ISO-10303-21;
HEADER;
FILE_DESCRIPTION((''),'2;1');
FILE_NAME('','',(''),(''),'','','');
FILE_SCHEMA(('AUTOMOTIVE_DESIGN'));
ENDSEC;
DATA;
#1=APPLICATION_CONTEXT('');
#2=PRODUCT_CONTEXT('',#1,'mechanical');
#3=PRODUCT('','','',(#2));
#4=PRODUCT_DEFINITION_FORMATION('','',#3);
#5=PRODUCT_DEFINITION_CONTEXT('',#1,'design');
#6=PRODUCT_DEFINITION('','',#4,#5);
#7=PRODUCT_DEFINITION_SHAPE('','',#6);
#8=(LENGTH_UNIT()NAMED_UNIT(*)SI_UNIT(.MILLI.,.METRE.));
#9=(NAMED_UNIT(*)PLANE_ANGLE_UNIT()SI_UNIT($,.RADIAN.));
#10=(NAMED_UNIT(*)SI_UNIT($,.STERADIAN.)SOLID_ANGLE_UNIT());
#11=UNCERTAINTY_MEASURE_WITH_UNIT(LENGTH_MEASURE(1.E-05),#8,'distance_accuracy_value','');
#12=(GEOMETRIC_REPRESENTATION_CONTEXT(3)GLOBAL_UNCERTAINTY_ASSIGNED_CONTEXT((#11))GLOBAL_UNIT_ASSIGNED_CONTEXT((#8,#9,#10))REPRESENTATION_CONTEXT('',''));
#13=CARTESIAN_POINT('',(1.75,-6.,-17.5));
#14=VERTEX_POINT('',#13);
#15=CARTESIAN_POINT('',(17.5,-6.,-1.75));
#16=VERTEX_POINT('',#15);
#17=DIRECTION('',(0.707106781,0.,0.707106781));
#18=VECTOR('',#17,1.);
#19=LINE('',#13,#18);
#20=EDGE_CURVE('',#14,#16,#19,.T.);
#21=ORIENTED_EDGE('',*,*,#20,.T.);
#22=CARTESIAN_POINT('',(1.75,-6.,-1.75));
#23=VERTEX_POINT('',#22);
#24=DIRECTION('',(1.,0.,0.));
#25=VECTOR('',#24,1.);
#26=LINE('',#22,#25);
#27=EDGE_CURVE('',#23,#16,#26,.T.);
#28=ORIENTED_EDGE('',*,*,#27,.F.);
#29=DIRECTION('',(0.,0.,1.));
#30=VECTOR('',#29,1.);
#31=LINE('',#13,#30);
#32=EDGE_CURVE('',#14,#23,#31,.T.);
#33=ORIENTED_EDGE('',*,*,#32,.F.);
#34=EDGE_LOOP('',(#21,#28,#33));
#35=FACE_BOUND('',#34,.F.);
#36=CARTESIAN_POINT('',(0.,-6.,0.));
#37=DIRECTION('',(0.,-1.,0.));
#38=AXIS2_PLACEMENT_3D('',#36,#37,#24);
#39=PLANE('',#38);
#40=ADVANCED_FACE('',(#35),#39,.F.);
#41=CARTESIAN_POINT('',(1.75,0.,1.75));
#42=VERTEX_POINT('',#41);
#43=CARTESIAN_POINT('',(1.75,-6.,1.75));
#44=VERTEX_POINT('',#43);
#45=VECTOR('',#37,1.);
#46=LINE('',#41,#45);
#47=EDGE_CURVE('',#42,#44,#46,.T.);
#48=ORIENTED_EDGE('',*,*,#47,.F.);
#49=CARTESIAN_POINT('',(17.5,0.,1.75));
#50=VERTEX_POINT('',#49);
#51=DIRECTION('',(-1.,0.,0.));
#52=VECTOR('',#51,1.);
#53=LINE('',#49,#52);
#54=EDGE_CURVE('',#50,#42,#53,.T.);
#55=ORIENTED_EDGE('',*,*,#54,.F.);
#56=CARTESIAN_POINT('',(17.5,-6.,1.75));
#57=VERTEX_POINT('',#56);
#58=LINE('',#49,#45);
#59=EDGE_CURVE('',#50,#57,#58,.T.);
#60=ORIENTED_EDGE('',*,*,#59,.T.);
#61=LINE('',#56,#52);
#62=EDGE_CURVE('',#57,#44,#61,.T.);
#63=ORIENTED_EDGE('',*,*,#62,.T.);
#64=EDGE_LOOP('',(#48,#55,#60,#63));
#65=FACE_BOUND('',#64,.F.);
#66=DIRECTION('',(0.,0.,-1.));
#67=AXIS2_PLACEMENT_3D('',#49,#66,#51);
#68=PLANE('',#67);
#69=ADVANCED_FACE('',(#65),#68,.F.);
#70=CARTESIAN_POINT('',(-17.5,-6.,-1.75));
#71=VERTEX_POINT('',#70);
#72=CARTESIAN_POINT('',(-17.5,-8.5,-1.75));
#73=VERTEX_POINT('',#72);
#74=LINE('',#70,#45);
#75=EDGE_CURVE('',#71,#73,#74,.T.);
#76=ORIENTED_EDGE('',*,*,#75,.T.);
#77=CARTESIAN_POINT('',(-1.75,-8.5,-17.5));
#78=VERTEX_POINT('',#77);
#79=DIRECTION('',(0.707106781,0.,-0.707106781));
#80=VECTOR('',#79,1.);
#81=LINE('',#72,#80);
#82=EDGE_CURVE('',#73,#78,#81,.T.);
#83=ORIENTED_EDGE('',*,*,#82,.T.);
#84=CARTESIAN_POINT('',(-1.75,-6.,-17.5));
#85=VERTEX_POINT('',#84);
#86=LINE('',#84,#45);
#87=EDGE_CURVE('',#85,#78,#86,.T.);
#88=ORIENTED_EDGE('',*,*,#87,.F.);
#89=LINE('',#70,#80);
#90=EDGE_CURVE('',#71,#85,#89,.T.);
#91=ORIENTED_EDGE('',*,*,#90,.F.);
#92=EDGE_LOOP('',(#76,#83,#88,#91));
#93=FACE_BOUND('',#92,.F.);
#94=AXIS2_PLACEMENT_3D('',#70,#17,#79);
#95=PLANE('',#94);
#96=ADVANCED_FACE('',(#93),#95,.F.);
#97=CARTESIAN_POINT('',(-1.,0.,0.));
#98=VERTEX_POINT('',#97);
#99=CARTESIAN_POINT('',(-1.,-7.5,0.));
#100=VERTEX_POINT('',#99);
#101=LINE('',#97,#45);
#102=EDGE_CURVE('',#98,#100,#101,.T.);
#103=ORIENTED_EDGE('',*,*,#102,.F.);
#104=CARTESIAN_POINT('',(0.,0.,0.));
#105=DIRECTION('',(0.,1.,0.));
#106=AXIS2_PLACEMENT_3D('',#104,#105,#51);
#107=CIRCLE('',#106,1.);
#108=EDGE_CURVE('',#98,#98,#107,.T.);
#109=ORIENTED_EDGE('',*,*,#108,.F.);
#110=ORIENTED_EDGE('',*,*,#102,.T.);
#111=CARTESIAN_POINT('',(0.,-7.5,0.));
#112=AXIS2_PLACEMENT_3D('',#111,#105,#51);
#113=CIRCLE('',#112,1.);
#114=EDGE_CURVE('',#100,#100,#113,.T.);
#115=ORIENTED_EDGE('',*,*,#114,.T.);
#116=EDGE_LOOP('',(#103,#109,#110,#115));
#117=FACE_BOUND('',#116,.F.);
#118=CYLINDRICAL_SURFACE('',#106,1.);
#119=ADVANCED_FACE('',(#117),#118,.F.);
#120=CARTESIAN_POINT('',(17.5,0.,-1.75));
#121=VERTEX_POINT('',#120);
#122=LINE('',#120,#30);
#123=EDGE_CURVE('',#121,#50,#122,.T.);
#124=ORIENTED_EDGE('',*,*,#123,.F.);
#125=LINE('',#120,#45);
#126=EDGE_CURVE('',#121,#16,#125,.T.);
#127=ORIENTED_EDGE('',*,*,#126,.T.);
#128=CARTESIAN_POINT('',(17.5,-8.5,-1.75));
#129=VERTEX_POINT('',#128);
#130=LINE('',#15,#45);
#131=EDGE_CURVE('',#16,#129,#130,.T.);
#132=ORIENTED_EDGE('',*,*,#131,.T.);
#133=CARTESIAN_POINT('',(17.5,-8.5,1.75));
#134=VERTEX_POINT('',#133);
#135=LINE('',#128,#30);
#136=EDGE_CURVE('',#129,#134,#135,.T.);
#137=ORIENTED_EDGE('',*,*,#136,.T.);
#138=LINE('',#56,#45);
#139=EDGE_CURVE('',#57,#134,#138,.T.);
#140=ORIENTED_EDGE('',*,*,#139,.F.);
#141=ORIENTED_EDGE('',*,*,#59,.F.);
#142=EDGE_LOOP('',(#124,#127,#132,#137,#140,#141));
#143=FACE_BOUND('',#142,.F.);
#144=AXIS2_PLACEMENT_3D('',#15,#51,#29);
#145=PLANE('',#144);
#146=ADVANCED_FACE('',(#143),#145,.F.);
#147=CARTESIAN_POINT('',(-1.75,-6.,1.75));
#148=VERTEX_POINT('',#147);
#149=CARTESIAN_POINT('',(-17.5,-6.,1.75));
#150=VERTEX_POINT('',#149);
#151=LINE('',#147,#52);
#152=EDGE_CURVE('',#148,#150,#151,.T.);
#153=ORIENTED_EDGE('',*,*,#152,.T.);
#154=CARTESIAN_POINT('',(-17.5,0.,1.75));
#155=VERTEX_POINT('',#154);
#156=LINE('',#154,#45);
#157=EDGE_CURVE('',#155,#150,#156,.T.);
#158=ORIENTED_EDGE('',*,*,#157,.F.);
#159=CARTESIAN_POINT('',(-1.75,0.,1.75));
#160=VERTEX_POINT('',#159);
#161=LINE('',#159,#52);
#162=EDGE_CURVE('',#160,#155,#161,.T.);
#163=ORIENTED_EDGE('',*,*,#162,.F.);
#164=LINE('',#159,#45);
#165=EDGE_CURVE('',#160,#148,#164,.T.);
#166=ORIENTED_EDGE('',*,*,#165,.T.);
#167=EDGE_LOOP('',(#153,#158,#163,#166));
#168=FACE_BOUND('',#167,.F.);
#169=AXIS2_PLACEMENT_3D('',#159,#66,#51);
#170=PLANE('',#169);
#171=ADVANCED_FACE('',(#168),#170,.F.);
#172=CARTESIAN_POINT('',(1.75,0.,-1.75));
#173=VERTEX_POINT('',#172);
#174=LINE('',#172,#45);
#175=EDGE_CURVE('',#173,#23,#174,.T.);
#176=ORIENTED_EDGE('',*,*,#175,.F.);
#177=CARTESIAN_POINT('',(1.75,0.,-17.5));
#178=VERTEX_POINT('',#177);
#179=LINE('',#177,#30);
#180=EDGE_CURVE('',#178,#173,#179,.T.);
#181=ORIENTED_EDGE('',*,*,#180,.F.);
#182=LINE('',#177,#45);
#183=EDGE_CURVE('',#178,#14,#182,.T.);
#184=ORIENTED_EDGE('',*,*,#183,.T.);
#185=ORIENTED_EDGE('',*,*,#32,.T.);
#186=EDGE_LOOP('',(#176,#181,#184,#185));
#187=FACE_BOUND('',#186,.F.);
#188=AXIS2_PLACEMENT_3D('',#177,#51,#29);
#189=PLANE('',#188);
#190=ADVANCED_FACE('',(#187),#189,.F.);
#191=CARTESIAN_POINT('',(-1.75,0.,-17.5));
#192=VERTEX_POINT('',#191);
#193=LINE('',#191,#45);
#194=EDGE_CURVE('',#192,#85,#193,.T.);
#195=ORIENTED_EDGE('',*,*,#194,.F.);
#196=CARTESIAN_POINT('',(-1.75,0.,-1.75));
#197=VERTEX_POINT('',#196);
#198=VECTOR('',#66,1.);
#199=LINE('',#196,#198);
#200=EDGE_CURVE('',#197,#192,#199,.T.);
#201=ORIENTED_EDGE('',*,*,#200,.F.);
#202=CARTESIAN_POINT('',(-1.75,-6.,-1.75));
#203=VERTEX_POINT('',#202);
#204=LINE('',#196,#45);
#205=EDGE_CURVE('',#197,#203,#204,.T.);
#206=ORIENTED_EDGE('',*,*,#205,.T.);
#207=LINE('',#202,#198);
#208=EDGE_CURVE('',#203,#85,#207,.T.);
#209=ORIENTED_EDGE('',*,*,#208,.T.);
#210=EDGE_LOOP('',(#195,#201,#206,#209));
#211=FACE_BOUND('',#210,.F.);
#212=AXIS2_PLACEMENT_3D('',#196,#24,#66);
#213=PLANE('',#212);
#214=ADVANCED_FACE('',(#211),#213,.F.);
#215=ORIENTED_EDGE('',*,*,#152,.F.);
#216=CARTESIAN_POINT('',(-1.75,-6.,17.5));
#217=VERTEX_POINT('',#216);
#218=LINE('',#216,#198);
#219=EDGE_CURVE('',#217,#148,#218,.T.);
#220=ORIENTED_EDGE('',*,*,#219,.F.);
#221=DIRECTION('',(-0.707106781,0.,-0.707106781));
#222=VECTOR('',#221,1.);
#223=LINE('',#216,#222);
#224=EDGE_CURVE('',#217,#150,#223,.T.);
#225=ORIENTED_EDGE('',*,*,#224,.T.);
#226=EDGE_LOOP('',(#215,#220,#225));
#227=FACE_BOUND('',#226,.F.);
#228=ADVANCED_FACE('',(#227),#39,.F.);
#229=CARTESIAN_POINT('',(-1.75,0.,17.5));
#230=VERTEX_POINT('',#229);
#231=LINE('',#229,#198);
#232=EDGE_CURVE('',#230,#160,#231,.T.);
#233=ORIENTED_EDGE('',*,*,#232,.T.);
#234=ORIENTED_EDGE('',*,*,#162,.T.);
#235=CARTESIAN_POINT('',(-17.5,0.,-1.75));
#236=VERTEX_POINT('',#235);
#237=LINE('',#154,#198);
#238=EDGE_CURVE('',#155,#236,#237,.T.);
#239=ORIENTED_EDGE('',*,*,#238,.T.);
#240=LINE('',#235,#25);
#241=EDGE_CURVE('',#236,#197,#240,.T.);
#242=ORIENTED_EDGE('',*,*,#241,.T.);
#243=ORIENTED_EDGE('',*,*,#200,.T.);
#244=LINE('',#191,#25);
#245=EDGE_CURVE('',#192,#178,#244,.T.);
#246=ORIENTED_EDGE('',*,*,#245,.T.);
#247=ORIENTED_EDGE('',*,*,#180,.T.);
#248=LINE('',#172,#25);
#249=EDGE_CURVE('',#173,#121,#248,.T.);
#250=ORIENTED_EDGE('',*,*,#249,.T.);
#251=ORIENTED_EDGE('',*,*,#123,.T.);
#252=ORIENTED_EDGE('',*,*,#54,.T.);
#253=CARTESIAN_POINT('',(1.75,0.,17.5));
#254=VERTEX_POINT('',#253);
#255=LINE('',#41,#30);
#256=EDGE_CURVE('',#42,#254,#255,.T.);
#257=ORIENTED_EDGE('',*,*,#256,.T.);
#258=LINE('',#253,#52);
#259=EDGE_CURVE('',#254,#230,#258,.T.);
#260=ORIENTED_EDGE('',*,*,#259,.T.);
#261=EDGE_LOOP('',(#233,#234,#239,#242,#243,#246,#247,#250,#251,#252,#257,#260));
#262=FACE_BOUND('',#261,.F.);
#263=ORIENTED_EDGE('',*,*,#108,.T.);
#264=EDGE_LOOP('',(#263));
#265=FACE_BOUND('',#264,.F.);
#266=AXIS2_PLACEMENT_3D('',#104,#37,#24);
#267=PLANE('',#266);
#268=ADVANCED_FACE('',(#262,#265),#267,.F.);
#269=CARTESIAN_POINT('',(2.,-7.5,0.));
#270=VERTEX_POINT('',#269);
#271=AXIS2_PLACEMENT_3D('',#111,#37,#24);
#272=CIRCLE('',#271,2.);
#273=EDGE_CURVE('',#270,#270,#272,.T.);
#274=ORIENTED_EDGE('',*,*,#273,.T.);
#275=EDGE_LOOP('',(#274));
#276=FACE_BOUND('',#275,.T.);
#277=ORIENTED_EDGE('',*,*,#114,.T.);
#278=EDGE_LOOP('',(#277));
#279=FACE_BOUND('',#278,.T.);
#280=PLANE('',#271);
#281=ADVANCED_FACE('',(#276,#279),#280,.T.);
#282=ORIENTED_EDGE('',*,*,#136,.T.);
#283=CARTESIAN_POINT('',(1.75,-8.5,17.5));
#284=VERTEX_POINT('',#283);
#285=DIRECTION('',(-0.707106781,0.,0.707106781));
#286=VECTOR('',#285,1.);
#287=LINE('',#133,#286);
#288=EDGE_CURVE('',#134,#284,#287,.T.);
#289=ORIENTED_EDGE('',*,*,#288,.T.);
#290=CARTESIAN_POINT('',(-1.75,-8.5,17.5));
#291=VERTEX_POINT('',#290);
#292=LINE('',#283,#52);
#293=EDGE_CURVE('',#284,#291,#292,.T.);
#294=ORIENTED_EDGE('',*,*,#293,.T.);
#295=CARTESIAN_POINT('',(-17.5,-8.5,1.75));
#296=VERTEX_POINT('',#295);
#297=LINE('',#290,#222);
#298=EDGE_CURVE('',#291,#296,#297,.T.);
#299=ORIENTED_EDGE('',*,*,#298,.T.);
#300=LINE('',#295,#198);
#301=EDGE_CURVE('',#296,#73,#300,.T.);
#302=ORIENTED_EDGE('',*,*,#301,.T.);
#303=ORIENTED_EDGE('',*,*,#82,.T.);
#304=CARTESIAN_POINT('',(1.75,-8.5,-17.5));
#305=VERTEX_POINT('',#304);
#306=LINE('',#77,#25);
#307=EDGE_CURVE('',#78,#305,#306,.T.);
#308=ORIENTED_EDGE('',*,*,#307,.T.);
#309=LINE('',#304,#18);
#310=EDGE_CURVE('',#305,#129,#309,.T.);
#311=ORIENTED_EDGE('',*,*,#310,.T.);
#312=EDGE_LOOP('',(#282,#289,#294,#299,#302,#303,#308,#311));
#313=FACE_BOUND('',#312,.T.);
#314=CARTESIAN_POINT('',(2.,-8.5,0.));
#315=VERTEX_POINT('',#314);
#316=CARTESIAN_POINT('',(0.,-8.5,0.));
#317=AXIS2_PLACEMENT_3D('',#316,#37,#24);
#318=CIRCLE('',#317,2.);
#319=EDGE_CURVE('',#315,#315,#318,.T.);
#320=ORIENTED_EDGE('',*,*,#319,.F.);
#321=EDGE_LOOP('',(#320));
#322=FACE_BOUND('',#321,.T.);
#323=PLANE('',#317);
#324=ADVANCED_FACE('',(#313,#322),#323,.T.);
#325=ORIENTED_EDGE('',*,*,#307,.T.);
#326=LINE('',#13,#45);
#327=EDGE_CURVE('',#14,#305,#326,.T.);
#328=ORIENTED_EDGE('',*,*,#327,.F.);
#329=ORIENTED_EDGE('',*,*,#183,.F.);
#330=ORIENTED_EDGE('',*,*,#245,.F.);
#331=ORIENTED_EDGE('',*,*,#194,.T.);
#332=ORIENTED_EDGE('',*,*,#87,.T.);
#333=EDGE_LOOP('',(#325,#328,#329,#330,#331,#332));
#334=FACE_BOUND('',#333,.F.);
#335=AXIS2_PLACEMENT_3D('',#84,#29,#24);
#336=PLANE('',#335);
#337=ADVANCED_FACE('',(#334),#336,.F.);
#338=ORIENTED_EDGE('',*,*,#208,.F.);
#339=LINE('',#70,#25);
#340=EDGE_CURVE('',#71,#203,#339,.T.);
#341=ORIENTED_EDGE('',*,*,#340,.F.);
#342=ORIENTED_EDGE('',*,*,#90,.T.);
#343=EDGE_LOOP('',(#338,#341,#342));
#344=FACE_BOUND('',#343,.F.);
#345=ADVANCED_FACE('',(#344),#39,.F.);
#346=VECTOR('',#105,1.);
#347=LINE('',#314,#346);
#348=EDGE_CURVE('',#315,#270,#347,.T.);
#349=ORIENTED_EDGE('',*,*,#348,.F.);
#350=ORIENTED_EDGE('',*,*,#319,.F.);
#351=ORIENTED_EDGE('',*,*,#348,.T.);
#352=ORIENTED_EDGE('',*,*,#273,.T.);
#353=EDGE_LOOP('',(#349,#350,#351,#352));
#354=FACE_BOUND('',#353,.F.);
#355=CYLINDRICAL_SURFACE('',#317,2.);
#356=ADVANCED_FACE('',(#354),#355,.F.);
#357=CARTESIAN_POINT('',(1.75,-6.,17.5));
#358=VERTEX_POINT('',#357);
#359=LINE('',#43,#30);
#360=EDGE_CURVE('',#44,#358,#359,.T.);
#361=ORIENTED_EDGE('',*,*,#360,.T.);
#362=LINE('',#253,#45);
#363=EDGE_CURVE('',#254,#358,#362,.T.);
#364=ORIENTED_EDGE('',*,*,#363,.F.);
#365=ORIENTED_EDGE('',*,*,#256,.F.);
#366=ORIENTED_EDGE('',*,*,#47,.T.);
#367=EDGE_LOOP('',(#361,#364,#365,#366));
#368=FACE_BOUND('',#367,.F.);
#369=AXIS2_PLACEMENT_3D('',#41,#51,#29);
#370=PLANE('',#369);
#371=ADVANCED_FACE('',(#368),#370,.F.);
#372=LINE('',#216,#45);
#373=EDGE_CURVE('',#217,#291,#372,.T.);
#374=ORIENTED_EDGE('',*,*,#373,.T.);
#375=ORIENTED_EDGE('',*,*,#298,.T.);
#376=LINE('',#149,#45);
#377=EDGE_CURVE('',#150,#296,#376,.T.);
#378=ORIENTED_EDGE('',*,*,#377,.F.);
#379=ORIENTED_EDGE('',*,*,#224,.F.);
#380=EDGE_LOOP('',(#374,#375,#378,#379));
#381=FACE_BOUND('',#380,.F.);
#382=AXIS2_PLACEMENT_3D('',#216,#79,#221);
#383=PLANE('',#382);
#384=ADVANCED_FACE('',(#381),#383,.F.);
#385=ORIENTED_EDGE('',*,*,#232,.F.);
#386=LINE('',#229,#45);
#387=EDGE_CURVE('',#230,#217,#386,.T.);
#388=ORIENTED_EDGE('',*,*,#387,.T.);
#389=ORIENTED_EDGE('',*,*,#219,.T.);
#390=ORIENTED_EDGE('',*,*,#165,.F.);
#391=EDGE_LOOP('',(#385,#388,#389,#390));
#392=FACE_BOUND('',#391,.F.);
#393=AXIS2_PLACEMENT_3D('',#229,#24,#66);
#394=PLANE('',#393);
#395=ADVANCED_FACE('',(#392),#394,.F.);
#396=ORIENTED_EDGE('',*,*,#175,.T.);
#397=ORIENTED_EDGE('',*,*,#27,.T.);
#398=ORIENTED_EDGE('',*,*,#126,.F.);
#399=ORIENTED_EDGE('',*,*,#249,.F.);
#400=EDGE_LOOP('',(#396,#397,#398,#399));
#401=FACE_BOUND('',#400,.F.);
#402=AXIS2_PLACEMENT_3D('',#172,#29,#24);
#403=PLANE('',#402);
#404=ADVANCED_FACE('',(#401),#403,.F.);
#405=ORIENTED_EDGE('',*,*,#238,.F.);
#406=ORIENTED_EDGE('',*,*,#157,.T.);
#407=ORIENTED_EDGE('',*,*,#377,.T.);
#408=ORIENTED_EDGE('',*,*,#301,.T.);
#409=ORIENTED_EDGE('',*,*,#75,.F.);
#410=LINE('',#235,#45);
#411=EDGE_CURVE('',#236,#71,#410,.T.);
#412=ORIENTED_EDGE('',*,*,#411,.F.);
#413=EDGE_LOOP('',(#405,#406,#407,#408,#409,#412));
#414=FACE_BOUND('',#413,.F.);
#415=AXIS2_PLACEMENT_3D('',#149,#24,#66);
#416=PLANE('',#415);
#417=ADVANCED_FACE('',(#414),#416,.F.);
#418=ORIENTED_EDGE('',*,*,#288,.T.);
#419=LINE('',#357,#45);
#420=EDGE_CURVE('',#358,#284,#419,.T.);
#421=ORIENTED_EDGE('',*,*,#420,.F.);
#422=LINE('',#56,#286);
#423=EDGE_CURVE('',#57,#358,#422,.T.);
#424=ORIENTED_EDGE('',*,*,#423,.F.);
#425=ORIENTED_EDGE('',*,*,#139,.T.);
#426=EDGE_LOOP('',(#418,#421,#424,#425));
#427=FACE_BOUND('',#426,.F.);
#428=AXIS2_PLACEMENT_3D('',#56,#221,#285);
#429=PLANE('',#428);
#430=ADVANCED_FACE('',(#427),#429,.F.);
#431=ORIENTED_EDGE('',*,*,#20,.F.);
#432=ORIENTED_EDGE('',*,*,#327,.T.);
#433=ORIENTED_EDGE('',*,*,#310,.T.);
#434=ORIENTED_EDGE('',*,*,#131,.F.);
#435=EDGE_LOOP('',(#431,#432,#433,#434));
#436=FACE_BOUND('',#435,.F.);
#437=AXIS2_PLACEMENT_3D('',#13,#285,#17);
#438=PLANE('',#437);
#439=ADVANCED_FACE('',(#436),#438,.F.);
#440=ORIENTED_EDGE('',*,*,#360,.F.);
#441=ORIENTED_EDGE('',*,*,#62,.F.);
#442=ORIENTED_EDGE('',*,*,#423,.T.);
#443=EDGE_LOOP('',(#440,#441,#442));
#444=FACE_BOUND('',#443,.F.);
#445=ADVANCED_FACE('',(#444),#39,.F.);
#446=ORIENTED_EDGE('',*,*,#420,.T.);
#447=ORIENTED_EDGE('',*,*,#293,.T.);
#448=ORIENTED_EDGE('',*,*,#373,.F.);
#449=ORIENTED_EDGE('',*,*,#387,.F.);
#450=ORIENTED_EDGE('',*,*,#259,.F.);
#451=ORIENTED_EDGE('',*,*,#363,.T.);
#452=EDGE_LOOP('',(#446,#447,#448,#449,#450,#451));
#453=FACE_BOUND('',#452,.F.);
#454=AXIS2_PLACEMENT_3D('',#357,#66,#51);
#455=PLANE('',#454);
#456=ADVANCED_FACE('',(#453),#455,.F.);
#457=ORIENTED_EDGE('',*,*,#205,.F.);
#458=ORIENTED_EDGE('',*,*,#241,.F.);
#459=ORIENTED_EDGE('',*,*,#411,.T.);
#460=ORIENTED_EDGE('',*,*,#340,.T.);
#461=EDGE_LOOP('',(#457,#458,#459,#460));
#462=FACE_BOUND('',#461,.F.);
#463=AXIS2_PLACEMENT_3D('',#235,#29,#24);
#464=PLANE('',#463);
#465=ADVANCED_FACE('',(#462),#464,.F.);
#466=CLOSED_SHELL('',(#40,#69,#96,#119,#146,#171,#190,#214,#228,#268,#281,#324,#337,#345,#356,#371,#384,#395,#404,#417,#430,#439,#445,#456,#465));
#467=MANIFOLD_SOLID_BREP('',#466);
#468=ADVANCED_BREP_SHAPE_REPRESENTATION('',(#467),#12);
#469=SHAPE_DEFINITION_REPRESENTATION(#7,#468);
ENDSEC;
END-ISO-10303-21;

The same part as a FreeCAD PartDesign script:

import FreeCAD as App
import Part
import Sketcher


def add_polygon(sketch, points):
    """Adds a closed chain of lines whose ends are joined by coincident constraints."""
    first, n = sketch.GeometryCount, len(points)
    for a, b in zip(points, points[1:] + points[:1]):
        sketch.addGeometry(Part.LineSegment(App.Vector(*a, 0), App.Vector(*b, 0)), False)
    for i in range(n):
        sketch.addConstraint(Sketcher.Constraint("Coincident", first + i, 2, first + (i + 1) % n, 1))

doc = App.newDocument("Part")
body = doc.addObject("PartDesign::Body", "Body")

# Sketch on XZ plane
sketch1 = body.newObject("Sketcher::SketchObject", "Sketch")
sketch1.AttachmentSupport = (doc.getObject("XZ_Plane"), [""])
sketch1.MapMode = "FlatFace"
add_polygon(sketch1, [(1.8, 1.8), (1.8, 17.5), (-1.8, 17.5), (-1.8, 1.8), (-17.5, 1.8), (-17.5, -1.8), (-1.8, -1.8), (-1.8, -17.5), (1.8, -17.5), (1.8, -1.8), (17.5, -1.8), (17.5, 1.8)])  # lines 0-11
sketch1.addConstraint([
    Sketcher.Constraint("Vertical", 0),
    Sketcher.Constraint("Horizontal", 1),
    Sketcher.Constraint("Vertical", 2),
    Sketcher.Constraint("Horizontal", 3),
    Sketcher.Constraint("Vertical", 4),
    Sketcher.Constraint("Horizontal", 5),
    Sketcher.Constraint("Vertical", 6),
    Sketcher.Constraint("Horizontal", 7),
    Sketcher.Constraint("Vertical", 8),
    Sketcher.Constraint("Horizontal", 9),
    Sketcher.Constraint("Vertical", 10),
    Sketcher.Constraint("Horizontal", 11),
    Sketcher.Constraint("Symmetric", 0, 2, 6, 2, -1, 1),
    Sketcher.Constraint("Symmetric", 2, 2, 8, 2, -1, 1),
    Sketcher.Constraint("Symmetric", 4, 2, 10, 2, -1, 1),
    Sketcher.Constraint("Symmetric", 5, 2, 8, 2, -2),
    Sketcher.Constraint("Equal", 11, 0),
    Sketcher.Constraint("Equal", 7, 4),
    Sketcher.Constraint("DistanceX", 1, 2, 1, 1, 3.5),
    Sketcher.Constraint("DistanceY", 6, 2, 1, 2, 35.0),
])
pad1 = body.newObject("PartDesign::Pad", "Pad")
pad1.Profile = sketch1
pad1.Length = 6

# Sketch on XZ plane
sketch2 = body.newObject("Sketcher::SketchObject", "Sketch001")
sketch2.AttachmentSupport = (doc.getObject("XZ_Plane"), [""])
sketch2.MapMode = "FlatFace"
sketch2.AttachmentOffset = App.Placement(App.Vector(0, 0, 6), App.Rotation())
add_polygon(sketch2, [(-1.8, 17.5), (-17.5, 1.8), (-17.5, -1.8), (-1.8, -17.5), (1.8, -17.5), (17.5, -1.8), (17.5, 1.8), (1.8, 17.5)])  # lines 0-7
sketch2.addConstraint([
    Sketcher.Constraint("Vertical", 1),
    Sketcher.Constraint("Horizontal", 3),
    Sketcher.Constraint("Vertical", 5),
    Sketcher.Constraint("Horizontal", 7),
    Sketcher.Constraint("Symmetric", 0, 2, 4, 2, -1, 1),
    Sketcher.Constraint("Symmetric", 2, 2, 6, 2, -1, 1),
    Sketcher.Constraint("Perpendicular", 0, 2),
    Sketcher.Constraint("Perpendicular", 2, 4),
    Sketcher.Constraint("Perpendicular", 4, 6),
    Sketcher.Constraint("Horizontal", 1, 2, 4, 2),
    Sketcher.Constraint("Vertical", 3, 2, 6, 2),
    Sketcher.Constraint("Equal", 7, 1),
    Sketcher.Constraint("DistanceX", 3, 1, 3, 2, 3.5),
    Sketcher.Constraint("DistanceX", 1, 2, 4, 2, 35.0),
])
pad2 = body.newObject("PartDesign::Pad", "Pad001")
pad2.Profile = sketch2
pad2.Length = 2.5

# Sketch on XZ plane
sketch3 = body.newObject("Sketcher::SketchObject", "Sketch002")
sketch3.AttachmentSupport = (doc.getObject("XZ_Plane"), [""])
sketch3.MapMode = "FlatFace"
sketch3.addGeometry(Part.Circle(App.Vector(0, 0, 0), App.Vector(0, 0, 1), 1), False)
sketch3.addConstraint([
    Sketcher.Constraint("Coincident", 0, 3, -1, 1),
    Sketcher.Constraint("Diameter", 0, 2.0),
])
pocket1 = body.newObject("PartDesign::Pocket", "Pocket")
pocket1.Profile = sketch3
pocket1.Type = "ThroughAll"
pocket1.Reversed = True

# Sketch on XZ plane
sketch4 = body.newObject("Sketcher::SketchObject", "Sketch003")
sketch4.AttachmentSupport = (doc.getObject("XZ_Plane"), [""])
sketch4.MapMode = "FlatFace"
sketch4.AttachmentOffset = App.Placement(App.Vector(0, 0, 8.5), App.Rotation())
sketch4.addGeometry(Part.Circle(App.Vector(0, 0, 0), App.Vector(0, 0, 1), 2), False)
sketch4.addConstraint([
    Sketcher.Constraint("Coincident", 0, 3, -1, 1),
    Sketcher.Constraint("Diameter", 0, 4.0),
])
pocket2 = body.newObject("PartDesign::Pocket", "Pocket001")
pocket2.Profile = sketch4
pocket2.Length = 1

doc.recompute()
